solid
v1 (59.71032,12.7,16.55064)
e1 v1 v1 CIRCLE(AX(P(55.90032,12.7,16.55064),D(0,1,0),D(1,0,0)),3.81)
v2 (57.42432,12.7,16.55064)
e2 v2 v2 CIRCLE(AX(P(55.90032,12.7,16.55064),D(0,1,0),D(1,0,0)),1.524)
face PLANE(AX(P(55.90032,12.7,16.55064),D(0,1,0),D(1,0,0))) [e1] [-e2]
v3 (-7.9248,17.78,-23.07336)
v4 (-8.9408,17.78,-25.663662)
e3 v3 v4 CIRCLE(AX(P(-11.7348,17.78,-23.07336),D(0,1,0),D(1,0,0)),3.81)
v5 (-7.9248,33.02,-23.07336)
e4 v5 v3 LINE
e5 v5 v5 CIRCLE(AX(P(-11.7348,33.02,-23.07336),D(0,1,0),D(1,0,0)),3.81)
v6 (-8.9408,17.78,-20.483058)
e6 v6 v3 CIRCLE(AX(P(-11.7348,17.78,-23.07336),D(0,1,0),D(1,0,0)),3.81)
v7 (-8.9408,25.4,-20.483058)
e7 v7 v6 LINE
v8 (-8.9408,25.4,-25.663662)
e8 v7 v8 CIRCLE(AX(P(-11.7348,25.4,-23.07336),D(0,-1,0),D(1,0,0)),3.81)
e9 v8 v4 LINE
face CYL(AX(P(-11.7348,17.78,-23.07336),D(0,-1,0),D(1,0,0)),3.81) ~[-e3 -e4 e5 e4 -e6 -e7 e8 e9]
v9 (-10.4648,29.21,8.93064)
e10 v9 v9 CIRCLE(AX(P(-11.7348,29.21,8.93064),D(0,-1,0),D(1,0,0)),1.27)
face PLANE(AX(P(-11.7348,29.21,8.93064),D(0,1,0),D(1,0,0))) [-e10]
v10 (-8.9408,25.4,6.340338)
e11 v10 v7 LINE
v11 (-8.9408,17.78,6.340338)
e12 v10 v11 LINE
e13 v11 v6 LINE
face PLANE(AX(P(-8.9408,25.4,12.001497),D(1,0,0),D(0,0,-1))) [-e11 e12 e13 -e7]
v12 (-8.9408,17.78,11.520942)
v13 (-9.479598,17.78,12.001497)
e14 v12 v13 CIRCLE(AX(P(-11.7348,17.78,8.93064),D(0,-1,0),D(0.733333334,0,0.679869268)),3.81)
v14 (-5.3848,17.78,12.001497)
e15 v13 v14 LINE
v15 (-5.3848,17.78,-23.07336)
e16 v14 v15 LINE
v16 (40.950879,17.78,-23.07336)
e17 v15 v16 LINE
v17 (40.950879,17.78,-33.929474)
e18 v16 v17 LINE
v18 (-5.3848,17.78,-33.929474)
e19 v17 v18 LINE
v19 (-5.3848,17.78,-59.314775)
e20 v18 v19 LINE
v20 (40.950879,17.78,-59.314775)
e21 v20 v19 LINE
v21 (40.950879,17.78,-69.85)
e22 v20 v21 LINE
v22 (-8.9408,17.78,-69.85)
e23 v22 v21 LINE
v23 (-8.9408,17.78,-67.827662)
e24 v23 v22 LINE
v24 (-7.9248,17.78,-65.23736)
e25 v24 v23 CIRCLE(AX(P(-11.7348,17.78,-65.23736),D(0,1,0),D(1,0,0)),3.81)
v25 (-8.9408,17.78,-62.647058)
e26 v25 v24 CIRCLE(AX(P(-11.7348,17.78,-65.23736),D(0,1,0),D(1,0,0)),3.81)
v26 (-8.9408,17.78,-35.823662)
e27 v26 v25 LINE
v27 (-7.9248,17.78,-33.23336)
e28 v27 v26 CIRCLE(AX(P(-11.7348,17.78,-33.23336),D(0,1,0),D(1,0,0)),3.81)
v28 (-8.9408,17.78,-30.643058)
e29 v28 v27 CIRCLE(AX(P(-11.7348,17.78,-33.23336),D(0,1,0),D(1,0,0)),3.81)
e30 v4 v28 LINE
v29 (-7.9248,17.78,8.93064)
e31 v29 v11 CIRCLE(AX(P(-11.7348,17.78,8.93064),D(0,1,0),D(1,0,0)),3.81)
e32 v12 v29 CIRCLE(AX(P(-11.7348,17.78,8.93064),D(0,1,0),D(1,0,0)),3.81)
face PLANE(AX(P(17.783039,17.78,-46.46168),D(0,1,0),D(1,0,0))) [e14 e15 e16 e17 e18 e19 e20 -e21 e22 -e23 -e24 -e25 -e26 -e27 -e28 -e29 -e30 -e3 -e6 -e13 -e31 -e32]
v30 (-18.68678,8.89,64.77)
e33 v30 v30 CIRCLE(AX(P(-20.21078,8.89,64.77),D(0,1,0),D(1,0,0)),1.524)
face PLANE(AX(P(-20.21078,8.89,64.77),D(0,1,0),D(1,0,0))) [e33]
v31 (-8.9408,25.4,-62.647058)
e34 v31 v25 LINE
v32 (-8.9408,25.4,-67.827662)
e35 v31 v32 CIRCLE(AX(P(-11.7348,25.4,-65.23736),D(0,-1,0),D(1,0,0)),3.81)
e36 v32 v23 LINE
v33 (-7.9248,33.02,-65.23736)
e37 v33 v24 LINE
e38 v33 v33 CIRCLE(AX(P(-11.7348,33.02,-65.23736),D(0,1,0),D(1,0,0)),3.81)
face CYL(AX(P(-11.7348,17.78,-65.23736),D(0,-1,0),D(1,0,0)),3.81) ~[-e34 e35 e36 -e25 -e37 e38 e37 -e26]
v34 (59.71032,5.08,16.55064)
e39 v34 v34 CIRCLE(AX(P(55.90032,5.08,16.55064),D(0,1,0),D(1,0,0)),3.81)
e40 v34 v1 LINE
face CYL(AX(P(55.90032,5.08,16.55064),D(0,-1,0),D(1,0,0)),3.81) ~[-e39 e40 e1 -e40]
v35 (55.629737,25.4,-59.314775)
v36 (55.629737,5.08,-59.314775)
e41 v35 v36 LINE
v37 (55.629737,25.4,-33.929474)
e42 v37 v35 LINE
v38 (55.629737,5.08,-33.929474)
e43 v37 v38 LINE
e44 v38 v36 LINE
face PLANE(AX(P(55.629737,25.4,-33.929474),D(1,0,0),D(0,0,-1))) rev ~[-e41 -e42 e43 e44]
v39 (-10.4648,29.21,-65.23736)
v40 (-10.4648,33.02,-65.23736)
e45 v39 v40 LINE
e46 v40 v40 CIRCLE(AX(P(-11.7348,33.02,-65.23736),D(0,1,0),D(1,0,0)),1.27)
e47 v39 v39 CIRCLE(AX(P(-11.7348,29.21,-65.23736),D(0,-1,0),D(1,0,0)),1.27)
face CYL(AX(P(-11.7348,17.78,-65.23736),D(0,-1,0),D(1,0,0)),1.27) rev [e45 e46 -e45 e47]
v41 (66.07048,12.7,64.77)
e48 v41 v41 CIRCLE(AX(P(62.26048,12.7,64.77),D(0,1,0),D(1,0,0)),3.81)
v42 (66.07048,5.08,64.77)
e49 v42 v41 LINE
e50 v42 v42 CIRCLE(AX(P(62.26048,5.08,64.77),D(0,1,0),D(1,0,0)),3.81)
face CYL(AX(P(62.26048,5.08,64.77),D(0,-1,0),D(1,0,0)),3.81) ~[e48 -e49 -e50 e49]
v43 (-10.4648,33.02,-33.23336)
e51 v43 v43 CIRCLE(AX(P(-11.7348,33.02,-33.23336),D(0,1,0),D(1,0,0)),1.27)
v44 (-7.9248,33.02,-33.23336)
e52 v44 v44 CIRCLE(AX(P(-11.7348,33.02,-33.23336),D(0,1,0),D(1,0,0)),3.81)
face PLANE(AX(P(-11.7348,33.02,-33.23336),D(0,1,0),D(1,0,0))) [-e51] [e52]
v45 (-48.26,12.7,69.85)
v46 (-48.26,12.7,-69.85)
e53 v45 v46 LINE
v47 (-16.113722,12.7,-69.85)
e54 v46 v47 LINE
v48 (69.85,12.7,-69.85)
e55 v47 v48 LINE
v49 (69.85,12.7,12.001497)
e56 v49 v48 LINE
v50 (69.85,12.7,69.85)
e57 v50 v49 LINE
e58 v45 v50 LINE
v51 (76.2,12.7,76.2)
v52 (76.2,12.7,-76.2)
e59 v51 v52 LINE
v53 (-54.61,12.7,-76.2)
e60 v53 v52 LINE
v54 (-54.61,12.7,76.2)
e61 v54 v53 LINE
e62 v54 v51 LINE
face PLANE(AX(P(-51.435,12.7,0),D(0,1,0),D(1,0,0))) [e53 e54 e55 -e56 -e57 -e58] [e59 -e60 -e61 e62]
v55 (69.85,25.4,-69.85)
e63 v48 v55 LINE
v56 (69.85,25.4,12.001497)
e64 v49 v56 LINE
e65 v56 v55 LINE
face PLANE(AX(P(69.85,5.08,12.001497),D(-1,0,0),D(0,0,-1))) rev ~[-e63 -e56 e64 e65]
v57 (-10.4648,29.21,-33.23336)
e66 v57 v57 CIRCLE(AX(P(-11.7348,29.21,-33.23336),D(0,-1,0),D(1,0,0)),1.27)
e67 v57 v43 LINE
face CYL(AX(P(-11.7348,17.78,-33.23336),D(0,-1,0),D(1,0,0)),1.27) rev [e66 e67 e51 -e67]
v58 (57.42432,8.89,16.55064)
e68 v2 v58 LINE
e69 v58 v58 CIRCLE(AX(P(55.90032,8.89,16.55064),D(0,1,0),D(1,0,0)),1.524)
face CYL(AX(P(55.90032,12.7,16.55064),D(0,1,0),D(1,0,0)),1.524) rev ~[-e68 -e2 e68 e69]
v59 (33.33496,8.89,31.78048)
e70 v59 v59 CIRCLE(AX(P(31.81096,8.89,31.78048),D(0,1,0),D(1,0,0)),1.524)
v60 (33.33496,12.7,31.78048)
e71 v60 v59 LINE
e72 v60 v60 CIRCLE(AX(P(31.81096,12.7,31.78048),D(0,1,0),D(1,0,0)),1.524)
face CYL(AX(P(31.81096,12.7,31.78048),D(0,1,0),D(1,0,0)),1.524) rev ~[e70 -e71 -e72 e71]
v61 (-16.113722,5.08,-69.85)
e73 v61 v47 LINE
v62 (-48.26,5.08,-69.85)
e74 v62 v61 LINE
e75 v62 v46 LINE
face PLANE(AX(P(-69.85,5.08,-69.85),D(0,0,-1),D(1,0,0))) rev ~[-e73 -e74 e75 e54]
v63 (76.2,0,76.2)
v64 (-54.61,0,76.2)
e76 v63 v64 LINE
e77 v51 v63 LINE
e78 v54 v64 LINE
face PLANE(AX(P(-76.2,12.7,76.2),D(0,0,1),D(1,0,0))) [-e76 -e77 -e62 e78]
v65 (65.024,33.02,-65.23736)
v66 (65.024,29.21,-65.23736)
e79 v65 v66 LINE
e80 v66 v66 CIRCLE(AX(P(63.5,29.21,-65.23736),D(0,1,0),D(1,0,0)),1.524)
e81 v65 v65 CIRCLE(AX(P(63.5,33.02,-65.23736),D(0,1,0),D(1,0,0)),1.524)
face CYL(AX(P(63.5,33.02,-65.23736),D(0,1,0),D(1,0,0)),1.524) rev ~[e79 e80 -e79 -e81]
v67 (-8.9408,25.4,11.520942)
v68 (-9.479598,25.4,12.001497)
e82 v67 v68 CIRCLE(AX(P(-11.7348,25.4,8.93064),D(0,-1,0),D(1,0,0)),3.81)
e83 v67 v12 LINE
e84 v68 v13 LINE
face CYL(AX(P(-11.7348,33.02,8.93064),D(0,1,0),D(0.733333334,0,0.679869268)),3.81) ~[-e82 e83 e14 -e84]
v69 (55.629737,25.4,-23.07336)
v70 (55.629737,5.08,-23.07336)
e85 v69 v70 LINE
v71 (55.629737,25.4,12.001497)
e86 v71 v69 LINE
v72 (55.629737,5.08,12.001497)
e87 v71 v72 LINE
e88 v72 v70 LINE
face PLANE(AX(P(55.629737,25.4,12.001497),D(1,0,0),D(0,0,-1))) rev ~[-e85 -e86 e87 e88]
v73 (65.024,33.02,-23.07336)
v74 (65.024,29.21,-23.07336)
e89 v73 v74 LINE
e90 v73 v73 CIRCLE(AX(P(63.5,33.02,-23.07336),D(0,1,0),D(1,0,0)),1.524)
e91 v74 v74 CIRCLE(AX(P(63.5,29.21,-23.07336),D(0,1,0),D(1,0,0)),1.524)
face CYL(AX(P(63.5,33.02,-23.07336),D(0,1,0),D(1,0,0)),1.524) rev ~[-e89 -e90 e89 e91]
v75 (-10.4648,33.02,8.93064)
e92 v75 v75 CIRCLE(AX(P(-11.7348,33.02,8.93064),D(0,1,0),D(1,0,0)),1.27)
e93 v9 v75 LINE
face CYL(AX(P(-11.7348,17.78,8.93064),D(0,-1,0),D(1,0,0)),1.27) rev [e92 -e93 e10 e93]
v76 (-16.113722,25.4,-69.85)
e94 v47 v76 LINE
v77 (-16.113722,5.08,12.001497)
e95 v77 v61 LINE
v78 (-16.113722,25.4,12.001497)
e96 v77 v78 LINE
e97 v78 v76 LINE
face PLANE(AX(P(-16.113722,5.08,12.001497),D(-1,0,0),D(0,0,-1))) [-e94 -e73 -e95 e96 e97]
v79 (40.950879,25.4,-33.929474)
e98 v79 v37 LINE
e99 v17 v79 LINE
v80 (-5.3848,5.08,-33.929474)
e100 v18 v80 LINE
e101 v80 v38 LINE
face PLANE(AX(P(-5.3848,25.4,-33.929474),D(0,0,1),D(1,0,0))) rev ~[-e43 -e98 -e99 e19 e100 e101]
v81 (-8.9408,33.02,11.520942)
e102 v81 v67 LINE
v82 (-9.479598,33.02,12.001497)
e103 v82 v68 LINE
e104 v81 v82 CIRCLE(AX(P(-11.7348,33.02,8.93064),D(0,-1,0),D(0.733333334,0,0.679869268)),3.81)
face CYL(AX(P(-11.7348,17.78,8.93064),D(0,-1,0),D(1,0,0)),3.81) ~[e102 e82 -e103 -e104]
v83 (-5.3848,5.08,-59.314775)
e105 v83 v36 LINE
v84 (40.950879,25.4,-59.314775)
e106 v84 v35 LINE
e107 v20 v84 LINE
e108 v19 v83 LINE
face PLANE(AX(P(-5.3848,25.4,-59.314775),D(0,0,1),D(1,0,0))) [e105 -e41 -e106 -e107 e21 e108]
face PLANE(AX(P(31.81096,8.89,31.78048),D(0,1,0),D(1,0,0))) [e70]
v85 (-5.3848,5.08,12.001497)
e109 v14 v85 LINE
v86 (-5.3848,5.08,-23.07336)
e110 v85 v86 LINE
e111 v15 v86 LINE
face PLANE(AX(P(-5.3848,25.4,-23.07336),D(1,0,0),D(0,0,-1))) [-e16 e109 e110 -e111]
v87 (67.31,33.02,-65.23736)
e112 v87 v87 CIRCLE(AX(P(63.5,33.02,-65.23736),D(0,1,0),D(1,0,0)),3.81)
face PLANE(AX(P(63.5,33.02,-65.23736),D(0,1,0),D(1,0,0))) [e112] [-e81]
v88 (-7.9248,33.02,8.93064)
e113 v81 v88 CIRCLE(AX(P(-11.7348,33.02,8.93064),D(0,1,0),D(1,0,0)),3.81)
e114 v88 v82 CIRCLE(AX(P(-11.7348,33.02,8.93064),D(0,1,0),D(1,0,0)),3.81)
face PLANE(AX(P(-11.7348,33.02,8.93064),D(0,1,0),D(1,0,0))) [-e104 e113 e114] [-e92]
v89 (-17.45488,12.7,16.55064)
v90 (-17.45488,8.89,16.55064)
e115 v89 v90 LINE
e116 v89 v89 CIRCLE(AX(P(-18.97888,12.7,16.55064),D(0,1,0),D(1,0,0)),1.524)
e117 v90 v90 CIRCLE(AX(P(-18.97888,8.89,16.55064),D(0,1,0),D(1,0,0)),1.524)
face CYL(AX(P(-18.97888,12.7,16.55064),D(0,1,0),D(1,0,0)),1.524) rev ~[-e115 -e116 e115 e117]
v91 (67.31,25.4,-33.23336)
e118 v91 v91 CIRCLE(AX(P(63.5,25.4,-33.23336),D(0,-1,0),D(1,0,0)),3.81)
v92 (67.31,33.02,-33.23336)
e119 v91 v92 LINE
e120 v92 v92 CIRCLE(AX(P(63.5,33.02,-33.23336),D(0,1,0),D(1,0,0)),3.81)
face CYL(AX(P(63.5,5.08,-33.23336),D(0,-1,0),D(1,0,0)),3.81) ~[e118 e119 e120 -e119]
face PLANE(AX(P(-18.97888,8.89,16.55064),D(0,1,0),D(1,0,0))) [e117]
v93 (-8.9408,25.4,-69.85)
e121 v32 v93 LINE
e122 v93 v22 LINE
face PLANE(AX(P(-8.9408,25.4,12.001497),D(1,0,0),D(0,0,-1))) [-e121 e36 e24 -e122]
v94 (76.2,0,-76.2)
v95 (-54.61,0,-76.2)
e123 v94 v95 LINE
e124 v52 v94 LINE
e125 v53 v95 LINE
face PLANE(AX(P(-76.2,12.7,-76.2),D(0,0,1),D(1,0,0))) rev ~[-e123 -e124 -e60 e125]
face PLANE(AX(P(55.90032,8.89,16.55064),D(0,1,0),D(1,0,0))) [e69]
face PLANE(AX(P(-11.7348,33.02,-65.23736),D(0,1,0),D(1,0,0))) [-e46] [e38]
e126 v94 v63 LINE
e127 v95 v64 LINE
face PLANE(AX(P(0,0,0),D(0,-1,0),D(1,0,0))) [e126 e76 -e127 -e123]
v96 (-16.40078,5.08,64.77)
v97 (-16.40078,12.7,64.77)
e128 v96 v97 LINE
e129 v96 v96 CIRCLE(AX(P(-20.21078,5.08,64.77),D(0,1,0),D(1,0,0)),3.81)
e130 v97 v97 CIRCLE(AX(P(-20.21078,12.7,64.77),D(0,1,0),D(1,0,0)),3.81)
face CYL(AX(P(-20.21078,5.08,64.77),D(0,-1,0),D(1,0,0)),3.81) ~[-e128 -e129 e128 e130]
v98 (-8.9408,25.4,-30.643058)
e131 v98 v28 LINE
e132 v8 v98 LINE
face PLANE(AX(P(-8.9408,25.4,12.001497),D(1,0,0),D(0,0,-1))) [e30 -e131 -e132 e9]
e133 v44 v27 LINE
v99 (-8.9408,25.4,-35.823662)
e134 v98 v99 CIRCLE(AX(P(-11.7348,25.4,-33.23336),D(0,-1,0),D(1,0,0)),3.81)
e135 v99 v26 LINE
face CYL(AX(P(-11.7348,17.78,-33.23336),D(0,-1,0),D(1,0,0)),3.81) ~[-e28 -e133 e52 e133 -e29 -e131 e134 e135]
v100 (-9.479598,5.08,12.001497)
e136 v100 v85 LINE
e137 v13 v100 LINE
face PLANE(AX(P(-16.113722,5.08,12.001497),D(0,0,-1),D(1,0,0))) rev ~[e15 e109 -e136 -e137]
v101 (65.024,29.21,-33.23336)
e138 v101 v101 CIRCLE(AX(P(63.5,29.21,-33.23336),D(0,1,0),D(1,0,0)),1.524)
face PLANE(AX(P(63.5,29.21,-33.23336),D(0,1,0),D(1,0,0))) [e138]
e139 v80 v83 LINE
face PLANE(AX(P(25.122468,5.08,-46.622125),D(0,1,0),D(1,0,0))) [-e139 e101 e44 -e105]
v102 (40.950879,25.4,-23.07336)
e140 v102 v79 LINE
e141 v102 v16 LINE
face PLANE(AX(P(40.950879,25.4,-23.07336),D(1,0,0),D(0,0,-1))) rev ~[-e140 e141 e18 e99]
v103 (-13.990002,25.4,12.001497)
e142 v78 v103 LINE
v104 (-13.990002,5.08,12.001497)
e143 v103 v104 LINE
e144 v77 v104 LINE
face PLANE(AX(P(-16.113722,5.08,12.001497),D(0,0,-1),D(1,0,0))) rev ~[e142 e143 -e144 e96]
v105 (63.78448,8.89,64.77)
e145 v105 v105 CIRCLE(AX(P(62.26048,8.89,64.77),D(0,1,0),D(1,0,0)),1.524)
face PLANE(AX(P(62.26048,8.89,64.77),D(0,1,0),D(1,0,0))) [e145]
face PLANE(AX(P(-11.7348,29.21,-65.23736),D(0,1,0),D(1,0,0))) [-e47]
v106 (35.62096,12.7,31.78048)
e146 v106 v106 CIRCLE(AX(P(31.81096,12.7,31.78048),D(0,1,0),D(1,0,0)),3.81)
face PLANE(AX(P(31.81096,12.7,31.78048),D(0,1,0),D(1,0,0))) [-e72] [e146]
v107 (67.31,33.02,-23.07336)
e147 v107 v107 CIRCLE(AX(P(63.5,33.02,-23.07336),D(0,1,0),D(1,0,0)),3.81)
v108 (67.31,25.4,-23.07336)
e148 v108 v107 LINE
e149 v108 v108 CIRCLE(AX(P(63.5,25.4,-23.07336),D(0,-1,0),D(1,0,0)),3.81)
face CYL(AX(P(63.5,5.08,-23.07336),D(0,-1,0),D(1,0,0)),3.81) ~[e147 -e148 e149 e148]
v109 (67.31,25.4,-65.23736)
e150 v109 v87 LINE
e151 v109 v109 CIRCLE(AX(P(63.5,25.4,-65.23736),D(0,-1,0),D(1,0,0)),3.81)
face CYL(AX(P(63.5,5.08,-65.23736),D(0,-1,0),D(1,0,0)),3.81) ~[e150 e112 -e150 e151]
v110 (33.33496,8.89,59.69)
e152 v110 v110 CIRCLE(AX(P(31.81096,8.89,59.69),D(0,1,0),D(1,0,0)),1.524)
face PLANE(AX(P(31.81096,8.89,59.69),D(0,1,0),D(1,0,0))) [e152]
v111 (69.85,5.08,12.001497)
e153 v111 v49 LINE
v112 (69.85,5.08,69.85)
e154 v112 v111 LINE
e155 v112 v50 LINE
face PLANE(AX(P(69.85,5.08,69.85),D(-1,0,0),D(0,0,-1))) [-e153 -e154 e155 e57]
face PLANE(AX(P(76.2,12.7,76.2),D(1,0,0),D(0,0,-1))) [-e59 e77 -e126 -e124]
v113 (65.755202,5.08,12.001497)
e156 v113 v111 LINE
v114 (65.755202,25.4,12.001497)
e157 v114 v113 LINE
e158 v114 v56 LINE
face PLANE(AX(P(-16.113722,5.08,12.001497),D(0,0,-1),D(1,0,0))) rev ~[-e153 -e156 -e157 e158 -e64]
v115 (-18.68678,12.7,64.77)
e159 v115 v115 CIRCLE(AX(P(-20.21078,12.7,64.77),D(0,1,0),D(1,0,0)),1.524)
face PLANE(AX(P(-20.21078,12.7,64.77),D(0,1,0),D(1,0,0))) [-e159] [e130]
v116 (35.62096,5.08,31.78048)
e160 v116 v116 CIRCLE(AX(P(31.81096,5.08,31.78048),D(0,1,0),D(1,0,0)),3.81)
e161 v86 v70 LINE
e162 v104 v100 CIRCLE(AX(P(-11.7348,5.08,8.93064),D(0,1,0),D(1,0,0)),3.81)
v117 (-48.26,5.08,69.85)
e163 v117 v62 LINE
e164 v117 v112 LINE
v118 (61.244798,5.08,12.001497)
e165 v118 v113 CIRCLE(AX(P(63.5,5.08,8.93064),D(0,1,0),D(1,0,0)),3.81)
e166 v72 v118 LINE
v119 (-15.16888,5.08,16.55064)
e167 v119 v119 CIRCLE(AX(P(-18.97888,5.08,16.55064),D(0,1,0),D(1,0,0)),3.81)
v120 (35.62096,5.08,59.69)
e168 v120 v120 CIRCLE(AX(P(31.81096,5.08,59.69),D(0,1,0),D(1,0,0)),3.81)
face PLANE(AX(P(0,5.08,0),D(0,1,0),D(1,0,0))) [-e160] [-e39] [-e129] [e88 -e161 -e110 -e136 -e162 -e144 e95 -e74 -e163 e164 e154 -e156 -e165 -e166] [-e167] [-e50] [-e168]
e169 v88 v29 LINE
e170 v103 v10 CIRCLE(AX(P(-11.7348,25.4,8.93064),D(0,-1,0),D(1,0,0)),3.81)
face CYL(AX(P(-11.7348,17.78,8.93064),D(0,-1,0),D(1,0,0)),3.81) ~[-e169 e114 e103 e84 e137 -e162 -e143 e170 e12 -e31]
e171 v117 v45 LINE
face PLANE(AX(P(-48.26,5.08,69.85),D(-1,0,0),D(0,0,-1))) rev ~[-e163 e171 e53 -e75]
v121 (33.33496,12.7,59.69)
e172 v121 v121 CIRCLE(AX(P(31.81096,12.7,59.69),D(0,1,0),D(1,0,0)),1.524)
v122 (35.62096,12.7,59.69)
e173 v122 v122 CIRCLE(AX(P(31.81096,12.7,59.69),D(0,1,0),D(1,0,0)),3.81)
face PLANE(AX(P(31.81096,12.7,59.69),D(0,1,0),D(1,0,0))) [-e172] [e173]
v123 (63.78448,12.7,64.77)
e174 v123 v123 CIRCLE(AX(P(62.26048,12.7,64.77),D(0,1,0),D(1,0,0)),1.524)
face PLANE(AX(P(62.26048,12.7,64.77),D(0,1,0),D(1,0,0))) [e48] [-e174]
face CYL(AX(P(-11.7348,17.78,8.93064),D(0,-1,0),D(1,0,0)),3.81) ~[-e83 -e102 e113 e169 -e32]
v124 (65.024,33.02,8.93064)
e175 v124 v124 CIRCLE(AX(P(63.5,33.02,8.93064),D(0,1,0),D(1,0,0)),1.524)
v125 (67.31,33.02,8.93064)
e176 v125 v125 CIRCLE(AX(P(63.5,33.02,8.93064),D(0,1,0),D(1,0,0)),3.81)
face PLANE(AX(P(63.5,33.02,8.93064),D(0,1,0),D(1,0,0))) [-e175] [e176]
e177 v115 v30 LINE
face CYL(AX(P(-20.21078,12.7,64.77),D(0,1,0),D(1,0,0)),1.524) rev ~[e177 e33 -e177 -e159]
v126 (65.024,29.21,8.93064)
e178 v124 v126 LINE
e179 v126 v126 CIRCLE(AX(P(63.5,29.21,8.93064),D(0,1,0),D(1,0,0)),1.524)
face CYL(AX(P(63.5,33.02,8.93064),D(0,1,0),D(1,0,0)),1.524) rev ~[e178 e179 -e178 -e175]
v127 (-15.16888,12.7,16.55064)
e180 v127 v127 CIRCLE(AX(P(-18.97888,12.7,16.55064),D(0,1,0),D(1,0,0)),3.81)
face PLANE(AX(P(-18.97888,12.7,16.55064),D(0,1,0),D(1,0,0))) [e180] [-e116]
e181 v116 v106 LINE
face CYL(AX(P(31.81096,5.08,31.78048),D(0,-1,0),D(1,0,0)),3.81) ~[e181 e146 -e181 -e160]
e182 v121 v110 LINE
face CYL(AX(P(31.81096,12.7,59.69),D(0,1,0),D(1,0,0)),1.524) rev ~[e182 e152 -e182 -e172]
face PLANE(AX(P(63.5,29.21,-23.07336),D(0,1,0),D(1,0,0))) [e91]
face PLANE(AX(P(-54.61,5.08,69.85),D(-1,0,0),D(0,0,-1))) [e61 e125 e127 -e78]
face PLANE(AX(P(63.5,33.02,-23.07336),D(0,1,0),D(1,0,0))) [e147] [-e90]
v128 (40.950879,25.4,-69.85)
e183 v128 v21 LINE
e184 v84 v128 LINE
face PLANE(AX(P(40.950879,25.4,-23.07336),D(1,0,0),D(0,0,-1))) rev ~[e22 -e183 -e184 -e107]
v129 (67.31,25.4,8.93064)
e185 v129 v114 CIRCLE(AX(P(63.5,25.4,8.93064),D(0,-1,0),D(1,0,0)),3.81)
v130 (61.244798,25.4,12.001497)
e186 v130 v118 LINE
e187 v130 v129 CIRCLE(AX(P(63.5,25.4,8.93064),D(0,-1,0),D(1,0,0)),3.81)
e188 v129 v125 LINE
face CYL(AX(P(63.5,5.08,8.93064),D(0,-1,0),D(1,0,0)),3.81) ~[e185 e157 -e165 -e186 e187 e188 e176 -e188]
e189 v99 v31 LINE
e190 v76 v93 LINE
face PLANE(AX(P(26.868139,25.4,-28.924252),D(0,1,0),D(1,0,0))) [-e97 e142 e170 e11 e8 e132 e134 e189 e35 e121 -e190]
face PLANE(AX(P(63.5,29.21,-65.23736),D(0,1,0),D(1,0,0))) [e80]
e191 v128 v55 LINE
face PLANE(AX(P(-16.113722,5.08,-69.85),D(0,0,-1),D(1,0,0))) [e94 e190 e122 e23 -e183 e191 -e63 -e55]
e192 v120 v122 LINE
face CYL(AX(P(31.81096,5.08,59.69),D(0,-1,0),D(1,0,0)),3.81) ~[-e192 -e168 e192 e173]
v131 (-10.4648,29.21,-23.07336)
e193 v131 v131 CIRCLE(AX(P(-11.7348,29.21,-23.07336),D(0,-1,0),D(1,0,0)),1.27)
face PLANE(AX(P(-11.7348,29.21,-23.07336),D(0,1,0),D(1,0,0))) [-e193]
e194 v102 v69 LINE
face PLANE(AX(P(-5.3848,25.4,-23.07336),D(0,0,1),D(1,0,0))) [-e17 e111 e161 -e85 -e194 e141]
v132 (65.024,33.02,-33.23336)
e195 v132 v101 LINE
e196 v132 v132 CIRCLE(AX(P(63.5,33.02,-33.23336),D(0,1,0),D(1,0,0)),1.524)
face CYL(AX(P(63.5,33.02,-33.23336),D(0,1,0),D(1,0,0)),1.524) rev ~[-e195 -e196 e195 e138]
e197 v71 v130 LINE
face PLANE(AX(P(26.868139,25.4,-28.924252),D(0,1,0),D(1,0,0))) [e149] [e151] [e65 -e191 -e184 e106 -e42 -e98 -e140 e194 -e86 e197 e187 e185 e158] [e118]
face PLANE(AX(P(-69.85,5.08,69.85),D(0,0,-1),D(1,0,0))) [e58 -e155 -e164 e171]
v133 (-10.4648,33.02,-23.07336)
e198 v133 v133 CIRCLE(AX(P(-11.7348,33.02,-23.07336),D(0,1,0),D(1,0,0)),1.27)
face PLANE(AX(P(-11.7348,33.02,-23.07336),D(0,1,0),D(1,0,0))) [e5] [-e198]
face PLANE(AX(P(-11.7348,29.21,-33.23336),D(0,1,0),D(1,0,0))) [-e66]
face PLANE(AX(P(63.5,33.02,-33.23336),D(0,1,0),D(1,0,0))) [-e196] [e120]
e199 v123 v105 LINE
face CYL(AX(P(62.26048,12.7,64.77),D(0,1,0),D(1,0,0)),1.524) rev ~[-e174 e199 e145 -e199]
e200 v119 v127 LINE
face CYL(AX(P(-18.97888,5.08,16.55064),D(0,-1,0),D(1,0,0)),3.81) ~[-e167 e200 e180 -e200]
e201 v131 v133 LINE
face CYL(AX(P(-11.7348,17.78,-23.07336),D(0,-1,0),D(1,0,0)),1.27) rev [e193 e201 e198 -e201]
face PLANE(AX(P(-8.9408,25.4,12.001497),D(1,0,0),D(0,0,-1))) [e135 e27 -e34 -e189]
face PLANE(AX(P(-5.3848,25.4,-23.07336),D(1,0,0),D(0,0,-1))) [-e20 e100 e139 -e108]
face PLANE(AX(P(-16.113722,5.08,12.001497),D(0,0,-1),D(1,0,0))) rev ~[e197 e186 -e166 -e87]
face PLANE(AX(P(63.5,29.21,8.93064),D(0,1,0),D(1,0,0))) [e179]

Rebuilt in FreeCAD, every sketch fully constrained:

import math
import FreeCAD as App
import Part
import Sketcher

V = App.Vector
Q = App.Units.Quantity

doc = App.newDocument("Part")
body = doc.addObject("PartDesign::Body", "Body")

# Sketch on XZ plane
sketch1 = doc.addObject("Sketcher::SketchObject", "Sketch")
body.addObject(sketch1)
sketch1.AttachmentSupport = (doc.XZ_Plane, [""])
sketch1.MapMode = "FlatFace"
sketch1.addGeometry([
    Part.LineSegment(V(-76, -76, 0), V(-76, 76, 0)),
    Part.LineSegment(V(-76, 76, 0), V(76, 76, 0)),
    Part.LineSegment(V(76, 76, 0), V(76, -76, 0)),
    Part.LineSegment(V(76, -76, 0), V(-76, -76, 0)),
], False)
sketch1.addConstraint([
    Sketcher.Constraint("Coincident", 0, 2, 1, 1),
    Sketcher.Constraint("Coincident", 1, 2, 2, 1),
    Sketcher.Constraint("Coincident", 2, 2, 3, 1),
    Sketcher.Constraint("Coincident", 3, 2, 0, 1),
    Sketcher.Constraint("Vertical", 0),
    Sketcher.Constraint("Horizontal", 1),
    Sketcher.Constraint("Vertical", 2),
    Sketcher.Constraint("Horizontal", 3),
    Sketcher.Constraint("Symmetric", 0, 2, 2, 2, -1, 1),
    Sketcher.Constraint("Equal", 3, 0),
    Sketcher.Constraint("DistanceX", 1, 1, 1, 2, Q("6 in")),
])
pad1 = doc.addObject("PartDesign::Pad", "Pad")
body.addObject(pad1)
pad1.Profile = sketch1
pad1.Length = Q("0.2 in")
pad1.Reversed = True

# Sketch on XZ plane
sketch2 = doc.addObject("Sketcher::SketchObject", "Sketch001")
body.addObject(sketch2)
sketch2.AttachmentSupport = (doc.XZ_Plane, [""])
sketch2.MapMode = "FlatFace"
sketch2.AttachmentOffset = App.Placement(V(0, 0, -0.2 * 25.4), App.Rotation())
sketch2.addGeometry([
    Part.Circle(V(62.3, 64.8, 0), V(0, 0, 1), 3.8),  # 0
    Part.Circle(V(-20.2, 64.8, 0), V(0, 0, 1), 3.8),  # 1
    Part.Circle(V(31.8, 59.7, 0), V(0, 0, 1), 3.8),  # 2
    Part.Circle(V(31.8, 31.8, 0), V(0, 0, 1), 3.8),  # 3
    Part.Circle(V(55.9, 16.6, 0), V(0, 0, 1), 3.8),  # 4
    Part.Circle(V(-19, 16.6, 0), V(0, 0, 1), 3.8),  # 5
], False)
sketch2.addConstraint([
    Sketcher.Constraint("Equal", 0, 1),
    Sketcher.Constraint("Equal", 1, 2),
    Sketcher.Constraint("Equal", 2, 3),
    Sketcher.Constraint("Equal", 3, 4),
    Sketcher.Constraint("Equal", 4, 5),
    Sketcher.Constraint("Horizontal", 0, 3, 1, 3),
    Sketcher.Constraint("Horizontal", 4, 3, 5, 3),
    Sketcher.Constraint("Vertical", 2, 3, 3, 3),
    Sketcher.Constraint("Diameter", 0, Q("0.3 in")),
    Sketcher.Constraint("DistanceY", 2, 3, 0, 3, Q("0.2 in")),
    Sketcher.Constraint("DistanceY", -1, 1, 0, 3, Q("2.55 in")),
    Sketcher.Constraint("DistanceX", 5, 3, 4, 3, Q("2.948 in")),
    Sketcher.Constraint("DistanceX", -1, 1, 0, 3, Q("2.4512 in")),
    Sketcher.Constraint("DistanceX", 1, 3, -1, 1, Q("0.7957 in")),
    Sketcher.Constraint("DistanceX", -1, 1, 2, 3, Q("1.2524 in")),
    Sketcher.Constraint("DistanceY", -1, 1, 3, 3, Q("1.2512 in")),
    Sketcher.Constraint("DistanceX", -1, 1, 4, 3, Q("2.2008 in")),
    Sketcher.Constraint("DistanceY", -1, 1, 4, 3, Q("0.6516 in")),
])
pad2 = doc.addObject("PartDesign::Pad", "Pad001")
body.addObject(pad2)
pad2.Profile = sketch2
pad2.Length = Q("0.3 in")
pad2.Reversed = True

# Sketch on XZ plane
sketch3 = doc.addObject("Sketcher::SketchObject", "Sketch002")
body.addObject(sketch3)
sketch3.AttachmentSupport = (doc.XZ_Plane, [""])
sketch3.MapMode = "FlatFace"
sketch3.AttachmentOffset = App.Placement(V(0, 0, -0.2 * 25.4), App.Rotation())
sketch3.addGeometry([
    Part.LineSegment(V(-76, -76, 0), V(-76, 76, 0)),  # 0
    Part.LineSegment(V(-76, 76, 0), V(76, 76, 0)),  # 1
    Part.LineSegment(V(76, 76, 0), V(76, -76, 0)),  # 2
    Part.LineSegment(V(76, -76, 0), V(-76, -76, 0)),  # 3
    Part.LineSegment(V(70, 70, 0), V(-70, 70, 0)),  # 4
    Part.LineSegment(V(-70, 70, 0), V(-70, -70, 0)),  # 5
    Part.LineSegment(V(-70, -70, 0), V(70, -70, 0)),  # 6
    Part.LineSegment(V(70, -70, 0), V(70, 70, 0)),  # 7
], False)
sketch3.addConstraint([
    Sketcher.Constraint("Coincident", 0, 2, 1, 1),
    Sketcher.Constraint("Coincident", 1, 2, 2, 1),
    Sketcher.Constraint("Coincident", 2, 2, 3, 1),
    Sketcher.Constraint("Coincident", 3, 2, 0, 1),
    Sketcher.Constraint("Coincident", 4, 2, 5, 1),
    Sketcher.Constraint("Coincident", 5, 2, 6, 1),
    Sketcher.Constraint("Coincident", 6, 2, 7, 1),
    Sketcher.Constraint("Coincident", 7, 2, 4, 1),
    Sketcher.Constraint("Vertical", 0),
    Sketcher.Constraint("Horizontal", 1),
    Sketcher.Constraint("Vertical", 2),
    Sketcher.Constraint("Horizontal", 3),
    Sketcher.Constraint("Horizontal", 4),
    Sketcher.Constraint("Vertical", 5),
    Sketcher.Constraint("Horizontal", 6),
    Sketcher.Constraint("Vertical", 7),
    Sketcher.Constraint("Symmetric", 0, 2, 2, 2, -1, 1),
    Sketcher.Constraint("Symmetric", 4, 2, 6, 2, -1, 1),
    Sketcher.Constraint("Equal", 3, 0),
    Sketcher.Constraint("Equal", 6, 5),
    Sketcher.Constraint("DistanceX", 1, 1, 1, 2, Q("6 in")),
    Sketcher.Constraint("DistanceX", 4, 2, 4, 1, Q("5.5 in")),
])
pad3 = doc.addObject("PartDesign::Pad", "Pad002")
body.addObject(pad3)
pad3.Profile = sketch3
pad3.Length = Q("0.3 in")
pad3.Reversed = True

# Sketch on XZ plane
sketch4 = doc.addObject("Sketcher::SketchObject", "Sketch003")
body.addObject(sketch4)
sketch4.AttachmentSupport = (doc.XZ_Plane, [""])
sketch4.MapMode = "FlatFace"
sketch4.AttachmentOffset = App.Placement(V(0, 0, -0.2 * 25.4), App.Rotation())
sketch4.addGeometry([
    Part.Circle(V(63.5, 8.9, 0), V(0, 0, 1), 3.8),  # 0
    Part.Circle(V(-11.7, 8.9, 0), V(0, 0, 1), 3.8),  # 1
    Part.Circle(V(63.5, -23.1, 0), V(0, 0, 1), 3.8),  # 2
    Part.Circle(V(-11.7, -23.1, 0), V(0, 0, 1), 3.8),  # 3
    Part.Circle(V(-11.7, -33.2, 0), V(0, 0, 1), 3.8),  # 4
    Part.Circle(V(63.5, -33.2, 0), V(0, 0, 1), 3.8),  # 5
    Part.Circle(V(63.5, -65.2, 0), V(0, 0, 1), 3.8),  # 6
    Part.Circle(V(-11.7, -65.2, 0), V(0, 0, 1), 3.8),  # 7
], False)
sketch4.addConstraint([
    Sketcher.Constraint("Equal", 0, 1),
    Sketcher.Constraint("Equal", 1, 2),
    Sketcher.Constraint("Equal", 2, 3),
    Sketcher.Constraint("Equal", 3, 4),
    Sketcher.Constraint("Equal", 4, 5),
    Sketcher.Constraint("Equal", 5, 6),
    Sketcher.Constraint("Equal", 6, 7),
    Sketcher.Constraint("Horizontal", 0, 3, 1, 3),
    Sketcher.Constraint("Horizontal", 2, 3, 3, 3),
    Sketcher.Constraint("Horizontal", 4, 3, 5, 3),
    Sketcher.Constraint("Horizontal", 6, 3, 7, 3),
    Sketcher.Constraint("Vertical", 0, 3, 2, 3),
    Sketcher.Constraint("Vertical", 1, 3, 3, 3),
    Sketcher.Constraint("Vertical", 3, 3, 4, 3),
    Sketcher.Constraint("Vertical", 2, 3, 5, 3),
    Sketcher.Constraint("Vertical", 5, 3, 6, 3),
    Sketcher.Constraint("Vertical", 4, 3, 7, 3),
    Sketcher.Constraint("Diameter", 0, Q("0.3 in")),
    Sketcher.Constraint("DistanceX", -1, 1, 0, 3, Q("2.5 in")),
    Sketcher.Constraint("DistanceY", 4, 3, 3, 3, Q("0.4 in")),
    Sketcher.Constraint("DistanceY", 2, 3, 0, 3, Q("1.26 in")),
    Sketcher.Constraint("DistanceY", 6, 3, 5, 3, Q("1.26 in")),
    Sketcher.Constraint("DistanceX", 1, 3, -1, 1, Q("0.462 in")),
    Sketcher.Constraint("DistanceY", -1, 1, 0, 3, Q("0.3516 in")),
])
pad4 = doc.addObject("PartDesign::Pad", "Pad003")
body.addObject(pad4)
pad4.Profile = sketch4
pad4.Length = Q("1.1 in")
pad4.Reversed = True

# Sketch on XZ plane
sketch5 = doc.addObject("Sketcher::SketchObject", "Sketch004")
body.addObject(sketch5)
sketch5.AttachmentSupport = (doc.XZ_Plane, [""])
sketch5.MapMode = "FlatFace"
sketch5.AttachmentOffset = App.Placement(V(0, 0, -0.2 * 25.4), App.Rotation())
sketch5.addGeometry([
    Part.LineSegment(V(-16, -70, 0), V(-16, 12, 0)),
    Part.LineSegment(V(-16, 12, 0), V(70, 12, 0)),
    Part.LineSegment(V(70, 12, 0), V(70, -70, 0)),
    Part.LineSegment(V(70, -70, 0), V(-16, -70, 0)),
], False)
sketch5.addConstraint([
    Sketcher.Constraint("Coincident", 0, 2, 1, 1),
    Sketcher.Constraint("Coincident", 1, 2, 2, 1),
    Sketcher.Constraint("Coincident", 2, 2, 3, 1),
    Sketcher.Constraint("Coincident", 3, 2, 0, 1),
    Sketcher.Constraint("Vertical", 0),
    Sketcher.Constraint("Horizontal", 1),
    Sketcher.Constraint("Vertical", 2),
    Sketcher.Constraint("Horizontal", 3),
    Sketcher.Constraint("DistanceX", -1, 1, 1, 2, Q("2.75 in")),
    Sketcher.Constraint("DistanceY", 2, 2, -1, 1, Q("2.75 in")),
    Sketcher.Constraint("DistanceY", 0, 1, 0, 2, Q("3.2224999 in")),
    Sketcher.Constraint("DistanceX", 1, 1, 1, 2, Q("85.963722 mm")),
])
pad5 = doc.addObject("PartDesign::Pad", "Pad004")
body.addObject(pad5)
pad5.Profile = sketch5
pad5.Length = Q("0.8 in")
pad5.Reversed = True

# Sketch on XZ plane
sketch6 = doc.addObject("Sketcher::SketchObject", "Sketch005")
body.addObject(sketch6)
sketch6.AttachmentSupport = (doc.XZ_Plane, [""])
sketch6.MapMode = "FlatFace"
sketch6.AttachmentOffset = App.Placement(V(0, 0, -1 * 25.4), App.Rotation())
sketch6.addGeometry([
    Part.LineSegment(V(-5, -59, 0), V(-5, -34, 0)),  # 0
    Part.LineSegment(V(-5, -34, 0), V(56, -34, 0)),  # 1
    Part.LineSegment(V(56, -34, 0), V(56, -59, 0)),  # 2
    Part.LineSegment(V(56, -59, 0), V(-5, -59, 0)),  # 3
    Part.LineSegment(V(-5, -23, 0), V(-5, 12, 0)),  # 4
    Part.LineSegment(V(-5, 12, 0), V(56, 12, 0)),  # 5
    Part.LineSegment(V(56, 12, 0), V(56, -23, 0)),  # 6
    Part.LineSegment(V(56, -23, 0), V(-5, -23, 0)),  # 7
], False)
sketch6.addConstraint([
    Sketcher.Constraint("Coincident", 0, 2, 1, 1),
    Sketcher.Constraint("Coincident", 1, 2, 2, 1),
    Sketcher.Constraint("Coincident", 2, 2, 3, 1),
    Sketcher.Constraint("Coincident", 3, 2, 0, 1),
    Sketcher.Constraint("Coincident", 4, 2, 5, 1),
    Sketcher.Constraint("Coincident", 5, 2, 6, 1),
    Sketcher.Constraint("Coincident", 6, 2, 7, 1),
    Sketcher.Constraint("Coincident", 7, 2, 4, 1),
    Sketcher.Constraint("Vertical", 0),
    Sketcher.Constraint("Horizontal", 1),
    Sketcher.Constraint("Vertical", 2),
    Sketcher.Constraint("Horizontal", 3),
    Sketcher.Constraint("Vertical", 4),
    Sketcher.Constraint("Horizontal", 5),
    Sketcher.Constraint("Vertical", 6),
    Sketcher.Constraint("Horizontal", 7),
    Sketcher.Constraint("Vertical", 3, 2, 4, 2),
    Sketcher.Constraint("Vertical", 2, 2, 5, 2),
    Sketcher.Constraint("DistanceY", 4, 1, 4, 2, Q("1.3808999 in")),
    Sketcher.Constraint("DistanceX", 0, 2, -1, 1, Q("0.212 in")),
    Sketcher.Constraint("DistanceY", 0, 1, 0, 2, Q("25.385301 mm")),
    Sketcher.Constraint("DistanceY", -1, 1, 4, 2, Q("0.4724999 in")),
    Sketcher.Constraint("DistanceX", 1, 1, 1, 2, Q("61.014537 mm")),
    Sketcher.Constraint("DistanceY", 0, 2, 4, 2, Q("45.930971 mm")),
])
pocket1 = doc.addObject("PartDesign::Pocket", "Pocket")
body.addObject(pocket1)
pocket1.Profile = sketch6
pocket1.Length = Q("0.8 in")
pocket1.Reversed = True

# Sketch on XZ plane
sketch7 = doc.addObject("Sketcher::SketchObject", "Sketch006")
body.addObject(sketch7)
sketch7.AttachmentSupport = (doc.XZ_Plane, [""])
sketch7.MapMode = "FlatFace"
sketch7.AttachmentOffset = App.Placement(V(0, 0, -1 * 25.4), App.Rotation())
sketch7.addGeometry([
    Part.LineSegment(V(-5, -70, 0), V(-5, -23, 0)),
    Part.LineSegment(V(-5, -23, 0), V(41, -23, 0)),
    Part.LineSegment(V(41, -23, 0), V(41, -70, 0)),
    Part.LineSegment(V(41, -70, 0), V(-5, -70, 0)),
], False)
sketch7.addConstraint([
    Sketcher.Constraint("Coincident", 0, 2, 1, 1),
    Sketcher.Constraint("Coincident", 1, 2, 2, 1),
    Sketcher.Constraint("Coincident", 2, 2, 3, 1),
    Sketcher.Constraint("Coincident", 3, 2, 0, 1),
    Sketcher.Constraint("Vertical", 0),
    Sketcher.Constraint("Horizontal", 1),
    Sketcher.Constraint("Vertical", 2),
    Sketcher.Constraint("Horizontal", 3),
    Sketcher.Constraint("DistanceY", 2, 2, -1, 1, Q("2.75 in")),
    Sketcher.Constraint("DistanceY", 0, 1, 0, 2, Q("1.8416 in")),
    Sketcher.Constraint("DistanceX", 0, 2, -1, 1, Q("0.212 in")),
    Sketcher.Constraint("DistanceX", 1, 1, 1, 2, Q("46.335679 mm")),
])
pocket2 = doc.addObject("PartDesign::Pocket", "Pocket001")
body.addObject(pocket2)
pocket2.Profile = sketch7
pocket2.Length = Q("0.3 in")
pocket2.Reversed = True

# Sketch on XZ plane
sketch8 = doc.addObject("Sketcher::SketchObject", "Sketch007")
body.addObject(sketch8)
sketch8.AttachmentSupport = (doc.XZ_Plane, [""])
sketch8.MapMode = "FlatFace"
sketch8.AttachmentOffset = App.Placement(V(0, 0, -0.5 * 25.4), App.Rotation())
sketch8.addGeometry([
    Part.Circle(V(-19, 16.6, 0), V(0, 0, 1), 1.5),  # 0
    Part.Circle(V(31.8, 31.8, 0), V(0, 0, 1), 1.5),  # 1
    Part.Circle(V(55.9, 16.6, 0), V(0, 0, 1), 1.5),  # 2
    Part.Circle(V(62.3, 64.8, 0), V(0, 0, 1), 1.5),  # 3
    Part.Circle(V(31.8, 59.7, 0), V(0, 0, 1), 1.5),  # 4
    Part.Circle(V(-20.2, 64.8, 0), V(0, 0, 1), 1.5),  # 5
], False)
sketch8.addConstraint([
    Sketcher.Constraint("Equal", 0, 1),
    Sketcher.Constraint("Equal", 1, 2),
    Sketcher.Constraint("Equal", 2, 3),
    Sketcher.Constraint("Equal", 3, 4),
    Sketcher.Constraint("Equal", 4, 5),
    Sketcher.Constraint("Horizontal", 0, 3, 2, 3),
    Sketcher.Constraint("Horizontal", 3, 3, 5, 3),
    Sketcher.Constraint("Vertical", 1, 3, 4, 3),
    Sketcher.Constraint("Diameter", 0, Q("0.12 in")),
    Sketcher.Constraint("DistanceY", 4, 3, 3, 3, Q("0.2 in")),
    Sketcher.Constraint("DistanceY", -1, 1, 3, 3, Q("2.55 in")),
    Sketcher.Constraint("DistanceX", 0, 3, 2, 3, Q("2.948 in")),
    Sketcher.Constraint("DistanceX", 0, 3, -1, 1, Q("0.7472 in")),
    Sketcher.Constraint("DistanceY", -1, 1, 0, 3, Q("0.6516 in")),
    Sketcher.Constraint("DistanceX", -1, 1, 1, 3, Q("1.2524 in")),
    Sketcher.Constraint("DistanceY", -1, 1, 1, 3, Q("1.2512 in")),
    Sketcher.Constraint("DistanceX", -1, 1, 3, 3, Q("2.4512 in")),
    Sketcher.Constraint("DistanceX", 5, 3, -1, 1, Q("0.7957 in")),
])
pocket3 = doc.addObject("PartDesign::Pocket", "Pocket002")
body.addObject(pocket3)
pocket3.Profile = sketch8
pocket3.Length = Q("0.15 in")
pocket3.Reversed = True

# Sketch on XZ plane
sketch9 = doc.addObject("Sketcher::SketchObject", "Sketch008")
body.addObject(sketch9)
sketch9.AttachmentSupport = (doc.XZ_Plane, [""])
sketch9.MapMode = "FlatFace"
sketch9.AttachmentOffset = App.Placement(V(0, 0, -1.3 * 25.4), App.Rotation())
sketch9.addGeometry([
    Part.Circle(V(63.5, -65.2, 0), V(0, 0, 1), 1.5),  # 0
    Part.Circle(V(63.5, -33.2, 0), V(0, 0, 1), 1.5),  # 1
    Part.Circle(V(63.5, -23.1, 0), V(0, 0, 1), 1.5),  # 2
    Part.Circle(V(63.5, 8.9, 0), V(0, 0, 1), 1.5),  # 3
    Part.Circle(V(-11.7, 8.9, 0), V(0, 0, 1), 1.5),  # 4
    Part.Circle(V(-11.7, -23.1, 0), V(0, 0, 1), 1.5),  # 5
    Part.Circle(V(-11.7, -33.2, 0), V(0, 0, 1), 1.5),  # 6
    Part.Circle(V(-11.7, -65.2, 0), V(0, 0, 1), 1.5),  # 7
], False)
sketch9.addConstraint([
    Sketcher.Constraint("Equal", 0, 1),
    Sketcher.Constraint("Equal", 1, 2),
    Sketcher.Constraint("Equal", 2, 3),
    Sketcher.Constraint("Equal", 3, 4),
    Sketcher.Constraint("Equal", 4, 5),
    Sketcher.Constraint("Equal", 5, 6),
    Sketcher.Constraint("Equal", 6, 7),
    Sketcher.Constraint("Horizontal", 3, 3, 4, 3),
    Sketcher.Constraint("Horizontal", 2, 3, 5, 3),
    Sketcher.Constraint("Horizontal", 1, 3, 6, 3),
    Sketcher.Constraint("Horizontal", 0, 3, 7, 3),
    Sketcher.Constraint("Vertical", 0, 3, 1, 3),
    Sketcher.Constraint("Vertical", 1, 3, 2, 3),
    Sketcher.Constraint("Vertical", 2, 3, 3, 3),
    Sketcher.Constraint("Vertical", 4, 3, 5, 3),
    Sketcher.Constraint("Vertical", 5, 3, 6, 3),
    Sketcher.Constraint("Vertical", 6, 3, 7, 3),
    Sketcher.Constraint("Diameter", 0, Q("0.12 in")),
    Sketcher.Constraint("DistanceX", -1, 1, 0, 3, Q("2.5 in")),
    Sketcher.Constraint("DistanceY", 1, 3, 2, 3, Q("0.4 in")),
    Sketcher.Constraint("DistanceY", 0, 3, 1, 3, Q("1.26 in")),
    Sketcher.Constraint("DistanceY", 2, 3, 3, 3, Q("1.26 in")),
    Sketcher.Constraint("DistanceX", 4, 3, -1, 1, Q("0.462 in")),
    Sketcher.Constraint("DistanceY", 0, 3, -1, 1, Q("2.5684 in")),
])
pocket4 = doc.addObject("PartDesign::Pocket", "Pocket003")
body.addObject(pocket4)
pocket4.Profile = sketch9
pocket4.Length = Q("0.15 in")
pocket4.Reversed = True

# Sketch on XZ plane
sketch10 = doc.addObject("Sketcher::SketchObject", "Sketch009")
body.addObject(sketch10)
sketch10.AttachmentSupport = (doc.XZ_Plane, [""])
sketch10.MapMode = "FlatFace"
sketch10.AttachmentOffset = App.Placement(V(0, 0, -0.5 * 25.4), App.Rotation())
sketch10.addGeometry([
    Part.LineSegment(V(-83, 83, 0), V(-83, -83, 0)),  # 0
    Part.LineSegment(V(-83, -83, 0), V(83, -83, 0)),  # 1
    Part.LineSegment(V(83, -83, 0), V(83, 83, 0)),  # 2
    Part.LineSegment(V(83, 83, 0), V(-83, 83, 0)),  # 3
    Part.LineSegment(V(76, -76, 0), V(-76, -76, 0)),  # 4
    Part.LineSegment(V(-76, -76, 0), V(-76, 76, 0)),  # 5
    Part.LineSegment(V(-76, 76, 0), V(76, 76, 0)),  # 6
    Part.LineSegment(V(76, 76, 0), V(76, -76, 0)),  # 7
], False)
sketch10.addConstraint([
    Sketcher.Constraint("Coincident", 0, 2, 1, 1),
    Sketcher.Constraint("Coincident", 1, 2, 2, 1),
    Sketcher.Constraint("Coincident", 2, 2, 3, 1),
    Sketcher.Constraint("Coincident", 3, 2, 0, 1),
    Sketcher.Constraint("Coincident", 4, 2, 5, 1),
    Sketcher.Constraint("Coincident", 5, 2, 6, 1),
    Sketcher.Constraint("Coincident", 6, 2, 7, 1),
    Sketcher.Constraint("Coincident", 7, 2, 4, 1),
    Sketcher.Constraint("Vertical", 0),
    Sketcher.Constraint("Horizontal", 1),
    Sketcher.Constraint("Vertical", 2),
    Sketcher.Constraint("Horizontal", 3),
    Sketcher.Constraint("Horizontal", 4),
    Sketcher.Constraint("Vertical", 5),
    Sketcher.Constraint("Horizontal", 6),
    Sketcher.Constraint("Vertical", 7),
    Sketcher.Constraint("Symmetric", 0, 2, 2, 2, -1, 1),
    Sketcher.Constraint("Symmetric", 4, 2, 6, 2, -1, 1),
    Sketcher.Constraint("Equal", 3, 0),
    Sketcher.Constraint("Equal", 6, 5),
    Sketcher.Constraint("DistanceX", 4, 2, 4, 1, Q("6 in")),
    Sketcher.Constraint("DistanceX", 1, 1, 1, 2, Q("6.5 in")),
])
pad6 = doc.addObject("PartDesign::Pad", "Pad005")
body.addObject(pad6)
pad6.Profile = sketch10
pad6.Length = Q("0.5 in")

# Sketch on XZ plane
sketch11 = doc.addObject("Sketcher::SketchObject", "Sketch010")
body.addObject(sketch11)
sketch11.AttachmentSupport = (doc.XZ_Plane, [""])
sketch11.MapMode = "FlatFace"
sketch11.AttachmentOffset = App.Placement(V(0, 0, -0.5 * 25.4), App.Rotation())
sketch11.addGeometry([
    Part.LineSegment(V(-101, -97, 0), V(-101, 103, 0)),  # 0
    Part.LineSegment(V(-101, 103, 0), V(94, 103, 0)),  # 1
    Part.LineSegment(V(94, 103, 0), V(94, -97, 0)),  # 2
    Part.LineSegment(V(94, -97, 0), V(-101, -97, 0)),  # 3
    Part.LineSegment(V(76, 76, 0), V(-76, 76, 0)),  # 4
    Part.LineSegment(V(-76, 76, 0), V(-76, -76, 0)),  # 5
    Part.LineSegment(V(-76, -76, 0), V(76, -76, 0)),  # 6
    Part.LineSegment(V(76, -76, 0), V(76, 76, 0)),  # 7
], False)
sketch11.addConstraint([
    Sketcher.Constraint("Coincident", 0, 2, 1, 1),
    Sketcher.Constraint("Coincident", 1, 2, 2, 1),
    Sketcher.Constraint("Coincident", 2, 2, 3, 1),
    Sketcher.Constraint("Coincident", 3, 2, 0, 1),
    Sketcher.Constraint("Coincident", 4, 2, 5, 1),
    Sketcher.Constraint("Coincident", 5, 2, 6, 1),
    Sketcher.Constraint("Coincident", 6, 2, 7, 1),
    Sketcher.Constraint("Coincident", 7, 2, 4, 1),
    Sketcher.Constraint("Vertical", 0),
    Sketcher.Constraint("Horizontal", 1),
    Sketcher.Constraint("Vertical", 2),
    Sketcher.Constraint("Horizontal", 3),
    Sketcher.Constraint("Horizontal", 4),
    Sketcher.Constraint("Vertical", 5),
    Sketcher.Constraint("Horizontal", 6),
    Sketcher.Constraint("Vertical", 7),
    Sketcher.Constraint("Symmetric", 4, 2, 6, 2, -1, 1),
    Sketcher.Constraint("Equal", 6, 5),
    Sketcher.Constraint("DistanceX", 4, 2, 4, 1, Q("6 in")),
    Sketcher.Constraint("DistanceY", 0, 1, 0, 2, Q("199.983119 mm")),
    Sketcher.Constraint("DistanceX", 1, 1, 1, 2, Q("195.571727 mm")),
    Sketcher.Constraint("DistanceX", -1, 1, 1, 2, Q("94.207111 mm")),
    Sketcher.Constraint("DistanceY", -1, 1, 0, 2, Q("102.658345 mm")),
])
pocket5 = doc.addObject("PartDesign::Pocket", "Pocket004")
body.addObject(pocket5)
pocket5.Profile = sketch11
pocket5.Type = "ThroughAll"
pocket5.Reversed = True

# Sketch on XZ plane
sketch12 = doc.addObject("Sketcher::SketchObject", "Sketch011")
body.addObject(sketch12)
sketch12.AttachmentSupport = (doc.XZ_Plane, [""])
sketch12.MapMode = "FlatFace"
sketch12.AttachmentOffset = App.Placement(V(0, 0, -0.5 * 25.4), App.Rotation())
sketch12.addGeometry([
    Part.LineSegment(V(-76, -76, 0), V(-76, 76, 0)),
    Part.LineSegment(V(-76, 76, 0), V(-55, 76, 0)),
    Part.LineSegment(V(-55, 76, 0), V(-55, -76, 0)),
    Part.LineSegment(V(-55, -76, 0), V(-76, -76, 0)),
], False)
sketch12.addConstraint([
    Sketcher.Constraint("Coincident", 0, 2, 1, 1),
    Sketcher.Constraint("Coincident", 1, 2, 2, 1),
    Sketcher.Constraint("Coincident", 2, 2, 3, 1),
    Sketcher.Constraint("Coincident", 3, 2, 0, 1),
    Sketcher.Constraint("Vertical", 0),
    Sketcher.Constraint("Horizontal", 1),
    Sketcher.Constraint("Vertical", 2),
    Sketcher.Constraint("Horizontal", 3),
    Sketcher.Constraint("DistanceY", 0, 1, 0, 2, Q("6 in")),
    Sketcher.Constraint("DistanceX", 0, 2, -1, 1, Q("3 in")),
    Sketcher.Constraint("DistanceY", -1, 1, 0, 2, Q("3 in")),
    Sketcher.Constraint("DistanceX", 1, 1, 1, 2, Q("0.85 in")),
])
pocket6 = doc.addObject("PartDesign::Pocket", "Pocket005")
body.addObject(pocket6)
pocket6.Profile = sketch12
pocket6.Type = "ThroughAll"
pocket6.Reversed = True

# Sketch on XZ plane
sketch13 = doc.addObject("Sketcher::SketchObject", "Sketch012")
body.addObject(sketch13)
sketch13.AttachmentSupport = (doc.XZ_Plane, [""])
sketch13.MapMode = "FlatFace"
sketch13.AttachmentOffset = App.Placement(V(0, 0, -0.2 * 25.4), App.Rotation())
sketch13.addGeometry([
    Part.LineSegment(V(-55, -70, 0), V(-55, 70, 0)),
    Part.LineSegment(V(-55, 70, 0), V(-48, 70, 0)),
    Part.LineSegment(V(-48, 70, 0), V(-48, -70, 0)),
    Part.LineSegment(V(-48, -70, 0), V(-55, -70, 0)),
], False)
sketch13.addConstraint([
    Sketcher.Constraint("Coincident", 0, 2, 1, 1),
    Sketcher.Constraint("Coincident", 1, 2, 2, 1),
    Sketcher.Constraint("Coincident", 2, 2, 3, 1),
    Sketcher.Constraint("Coincident", 3, 2, 0, 1),
    Sketcher.Constraint("Vertical", 0),
    Sketcher.Constraint("Horizontal", 1),
    Sketcher.Constraint("Vertical", 2),
    Sketcher.Constraint("Horizontal", 3),
    Sketcher.Constraint("DistanceY", 0, 1, 0, 2, Q("5.5 in")),
    Sketcher.Constraint("DistanceX", 1, 1, 1, 2, Q("0.25 in")),
    Sketcher.Constraint("DistanceX", 1, 2, -1, 1, Q("1.9 in")),
    Sketcher.Constraint("DistanceY", -1, 1, 0, 2, Q("2.75 in")),
])
pad7 = doc.addObject("PartDesign::Pad", "Pad006")
body.addObject(pad7)
pad7.Profile = sketch13
pad7.Length = Q("0.3 in")
pad7.Reversed = True

# Sketch on XZ plane
sketch14 = doc.addObject("Sketcher::SketchObject", "Sketch013")
body.addObject(sketch14)
sketch14.AttachmentSupport = (doc.XZ_Plane, [""])
sketch14.MapMode = "FlatFace"
sketch14.AttachmentOffset = App.Placement(V(0, 0, -1 * 25.4), App.Rotation())
sketch14.addGeometry([
    Part.LineSegment(V(-8.9, -69.8, 0), V(-8.9, 12, 0)),
    Part.LineSegment(V(-8.9, 12, 0), V(-5.4, 12, 0)),
    Part.LineSegment(V(-5.4, 12, 0), V(-5.4, -69.8, 0)),
    Part.LineSegment(V(-5.4, -69.8, 0), V(-8.9, -69.8, 0)),
], False)
sketch14.addConstraint([
    Sketcher.Constraint("Coincident", 0, 2, 1, 1),
    Sketcher.Constraint("Coincident", 1, 2, 2, 1),
    Sketcher.Constraint("Coincident", 2, 2, 3, 1),
    Sketcher.Constraint("Coincident", 3, 2, 0, 1),
    Sketcher.Constraint("Vertical", 0),
    Sketcher.Constraint("Horizontal", 1),
    Sketcher.Constraint("Vertical", 2),
    Sketcher.Constraint("Horizontal", 3),
    Sketcher.Constraint("DistanceX", 1, 1, 1, 2, Q("0.14 in")),
    Sketcher.Constraint("DistanceY", 2, 2, -1, 1, Q("2.75 in")),
    Sketcher.Constraint("DistanceY", 0, 1, 0, 2, Q("3.2224999 in")),
    Sketcher.Constraint("DistanceX", 0, 2, -1, 1, Q("0.352 in")),
])
pocket7 = doc.addObject("PartDesign::Pocket", "Pocket006")
body.addObject(pocket7)
pocket7.Profile = sketch14
pocket7.Length = Q("0.3 in")
pocket7.Reversed = True

# Sketch on XZ plane
sketch15 = doc.addObject("Sketcher::SketchObject", "Sketch014")
body.addObject(sketch15)
sketch15.AttachmentSupport = (doc.XZ_Plane, [""])
sketch15.MapMode = "FlatFace"
sketch15.AttachmentOffset = App.Placement(V(0, 0, -0.7 * 25.4), App.Rotation())
sketch15.addGeometry([
    Part.Circle(V(-11.7, -65.2, 0), V(0, 0, 1), 3.8),  # 0
    Part.Circle(V(-11.7, -65.2, 0), V(0, 0, 1), 1.3),  # 1
    Part.Circle(V(-11.7, -33.2, 0), V(0, 0, 1), 3.8),  # 2
    Part.Circle(V(-11.7, -33.2, 0), V(0, 0, 1), 1.3),  # 3
    Part.Circle(V(-11.7, -23.1, 0), V(0, 0, 1), 3.8),  # 4
    Part.Circle(V(-11.7, -23.1, 0), V(0, 0, 1), 1.3),  # 5
    Part.Circle(V(-11.7, 8.9, 0), V(0, 0, 1), 3.8),  # 6
    Part.Circle(V(-11.7, 8.9, 0), V(0, 0, 1), 1.3),  # 7
], False)
sketch15.addConstraint([
    Sketcher.Constraint("Coincident", 1, 3, 0, 3),
    Sketcher.Constraint("Coincident", 3, 3, 2, 3),
    Sketcher.Constraint("Coincident", 5, 3, 4, 3),
    Sketcher.Constraint("Coincident", 7, 3, 6, 3),
    Sketcher.Constraint("Equal", 0, 2),
    Sketcher.Constraint("Equal", 1, 3),
    Sketcher.Constraint("Equal", 2, 4),
    Sketcher.Constraint("Equal", 3, 5),
    Sketcher.Constraint("Equal", 4, 6),
    Sketcher.Constraint("Equal", 5, 7),
    Sketcher.Constraint("Vertical", 1, 3, 2, 3),
    Sketcher.Constraint("Vertical", 3, 3, 4, 3),
    Sketcher.Constraint("Vertical", 5, 3, 6, 3),
    Sketcher.Constraint("Diameter", 0, Q("0.3 in")),
    Sketcher.Constraint("Diameter", 1, Q("0.1 in")),
    Sketcher.Constraint("DistanceY", 2, 3, 4, 3, Q("0.4 in")),
    Sketcher.Constraint("DistanceY", 0, 3, 2, 3, Q("1.26 in")),
    Sketcher.Constraint("DistanceY", 4, 3, 6, 3, Q("1.26 in")),
    Sketcher.Constraint("DistanceX", 0, 3, -1, 1, Q("0.462 in")),
    Sketcher.Constraint("DistanceY", 0, 3, -1, 1, Q("2.5684 in")),
])
pad8 = doc.addObject("PartDesign::Pad", "Pad007")
body.addObject(pad8)
pad8.Profile = sketch15
pad8.Length = Q("0.6 in")
pad8.Reversed = True

# Sketch on XZ plane
sketch16 = doc.addObject("Sketcher::SketchObject", "Sketch015")
body.addObject(sketch16)
sketch16.AttachmentSupport = (doc.XZ_Plane, [""])
sketch16.MapMode = "FlatFace"
sketch16.AttachmentOffset = App.Placement(V(0, 0, -1.3 * 25.4), App.Rotation())
sketch16.addGeometry([
    Part.LineSegment(V(-8.94, 12, 0), V(-8.94, 11.52, 0)),
    Part.ArcOfCircle(Part.Circle(V(-11.73, 8.93, 0), V(0, 0, 1), 3.81), math.radians(42.83), math.radians(53.71)),
    Part.LineSegment(V(-9.48, 12, 0), V(-8.94, 12, 0)),
], False)
sketch16.addConstraint([
    Sketcher.Constraint("Coincident", 0, 2, 1, 1),
    Sketcher.Constraint("Coincident", 1, 2, 2, 1),
    Sketcher.Constraint("Coincident", 2, 2, 0, 1),
    Sketcher.Constraint("Vertical", 0),
    Sketcher.Constraint("Horizontal", 2),
    Sketcher.Constraint("Radius", 1, Q("0.15 in")),
    Sketcher.Constraint("DistanceX", 1, 3, 0, 2, Q("0.11 in")),
    Sketcher.Constraint("DistanceX", 1, 3, -1, 1, Q("0.462 in")),
    Sketcher.Constraint("DistanceY", -1, 1, 1, 3, Q("0.3516 in")),
    Sketcher.Constraint("DistanceY", -1, 1, 1, 2, Q("0.4724999 in")),
])
pocket8 = doc.addObject("PartDesign::Pocket", "Pocket007")
body.addObject(pocket8)
pocket8.Profile = sketch16
pocket8.Length = Q("0.6 in")
pocket8.Reversed = True

doc.recompute()
